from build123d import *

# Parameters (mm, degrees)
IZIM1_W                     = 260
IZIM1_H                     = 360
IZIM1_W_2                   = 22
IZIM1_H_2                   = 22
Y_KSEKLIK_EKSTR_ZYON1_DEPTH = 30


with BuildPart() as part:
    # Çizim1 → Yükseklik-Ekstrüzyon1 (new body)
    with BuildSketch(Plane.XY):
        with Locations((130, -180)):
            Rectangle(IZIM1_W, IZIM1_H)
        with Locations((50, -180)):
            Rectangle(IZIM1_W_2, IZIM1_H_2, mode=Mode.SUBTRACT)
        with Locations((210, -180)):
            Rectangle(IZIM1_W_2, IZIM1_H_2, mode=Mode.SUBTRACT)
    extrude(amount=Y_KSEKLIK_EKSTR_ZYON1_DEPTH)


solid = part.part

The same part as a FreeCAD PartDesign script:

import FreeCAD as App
import Part
import Sketcher


def add_polygon(sketch, points):
    """Adds a closed chain of lines whose ends are joined by coincident constraints."""
    first, n = sketch.GeometryCount, len(points)
    for a, b in zip(points, points[1:] + points[:1]):
        sketch.addGeometry(Part.LineSegment(App.Vector(*a, 0), App.Vector(*b, 0)), False)
    for i in range(n):
        sketch.addConstraint(Sketcher.Constraint("Coincident", first + i, 2, first + (i + 1) % n, 1))

doc = App.newDocument("Part")
params = doc.addObject("Spreadsheet::Sheet", "Params")
for row, (alias, value) in enumerate([
    ("sketch1_width", "260 mm"),
    ("sketch1_width2", "22 mm"),
    ("sketch1_height", "360 mm"),
    ("pad1_length", "30 mm"),
], start=1):
    params.set(f"A{row}", alias)
    params.set(f"B{row}", "=" + value)
    params.setAlias(f"B{row}", alias)

body = doc.addObject("PartDesign::Body", "Body")

# Sketch on XY plane
sketch1 = body.newObject("Sketcher::SketchObject", "Sketch")
sketch1.AttachmentSupport = (doc.getObject("XY_Plane"), [""])
sketch1.MapMode = "FlatFace"
add_polygon(sketch1, [(0, 0), (0, -360), (260, -360), (260, 0)])  # lines 0-3
add_polygon(sketch1, [(61, -191), (39, -191), (39, -169), (61, -169)])  # lines 4-7
add_polygon(sketch1, [(221, -191), (199, -191), (199, -169), (221, -169)])  # lines 8-11
sketch1.addConstraint([
    Sketcher.Constraint("Vertical", 0),
    Sketcher.Constraint("Horizontal", 1),
    Sketcher.Constraint("Vertical", 2),
    Sketcher.Constraint("Horizontal", 3),
    Sketcher.Constraint("Horizontal", 4),
    Sketcher.Constraint("Vertical", 5),
    Sketcher.Constraint("Horizontal", 6),
    Sketcher.Constraint("Vertical", 7),
    Sketcher.Constraint("Horizontal", 8),
    Sketcher.Constraint("Vertical", 9),
    Sketcher.Constraint("Horizontal", 10),
    Sketcher.Constraint("Vertical", 11),
    Sketcher.Constraint("Coincident", 3, 2, -1, 1),
    Sketcher.Constraint("Horizontal", 7, 2, 8, 2),
    Sketcher.Constraint("Horizontal", 6, 2, 9, 2),
    Sketcher.Constraint("Equal", 6, 8),
    Sketcher.Constraint("Equal", 10, 5),
    Sketcher.Constraint("DistanceX", 1, 1, 1, 2, 260.0),
    Sketcher.Constraint("DistanceX", 4, 2, 4, 1, 22.0),
    Sketcher.Constraint("DistanceY", 0, 2, 0, 1, 360.0),
    Sketcher.Constraint("DistanceX", -1, 1, 4, 2, 39.0),
    Sketcher.Constraint("DistanceY", 4, 2, -1, 1, 191.0),
    Sketcher.Constraint("DistanceX", -1, 1, 8, 2, 199.0),
])
sketch1.setExpression("Constraints[29]", "Params.sketch1_width")
sketch1.setExpression("Constraints[30]", "Params.sketch1_width2")
sketch1.setExpression("Constraints[31]", "Params.sketch1_height")
pad1 = body.newObject("PartDesign::Pad", "Pad")
pad1.Profile = sketch1
pad1.setExpression("Length", "Params.pad1_length")

doc.recompute()
